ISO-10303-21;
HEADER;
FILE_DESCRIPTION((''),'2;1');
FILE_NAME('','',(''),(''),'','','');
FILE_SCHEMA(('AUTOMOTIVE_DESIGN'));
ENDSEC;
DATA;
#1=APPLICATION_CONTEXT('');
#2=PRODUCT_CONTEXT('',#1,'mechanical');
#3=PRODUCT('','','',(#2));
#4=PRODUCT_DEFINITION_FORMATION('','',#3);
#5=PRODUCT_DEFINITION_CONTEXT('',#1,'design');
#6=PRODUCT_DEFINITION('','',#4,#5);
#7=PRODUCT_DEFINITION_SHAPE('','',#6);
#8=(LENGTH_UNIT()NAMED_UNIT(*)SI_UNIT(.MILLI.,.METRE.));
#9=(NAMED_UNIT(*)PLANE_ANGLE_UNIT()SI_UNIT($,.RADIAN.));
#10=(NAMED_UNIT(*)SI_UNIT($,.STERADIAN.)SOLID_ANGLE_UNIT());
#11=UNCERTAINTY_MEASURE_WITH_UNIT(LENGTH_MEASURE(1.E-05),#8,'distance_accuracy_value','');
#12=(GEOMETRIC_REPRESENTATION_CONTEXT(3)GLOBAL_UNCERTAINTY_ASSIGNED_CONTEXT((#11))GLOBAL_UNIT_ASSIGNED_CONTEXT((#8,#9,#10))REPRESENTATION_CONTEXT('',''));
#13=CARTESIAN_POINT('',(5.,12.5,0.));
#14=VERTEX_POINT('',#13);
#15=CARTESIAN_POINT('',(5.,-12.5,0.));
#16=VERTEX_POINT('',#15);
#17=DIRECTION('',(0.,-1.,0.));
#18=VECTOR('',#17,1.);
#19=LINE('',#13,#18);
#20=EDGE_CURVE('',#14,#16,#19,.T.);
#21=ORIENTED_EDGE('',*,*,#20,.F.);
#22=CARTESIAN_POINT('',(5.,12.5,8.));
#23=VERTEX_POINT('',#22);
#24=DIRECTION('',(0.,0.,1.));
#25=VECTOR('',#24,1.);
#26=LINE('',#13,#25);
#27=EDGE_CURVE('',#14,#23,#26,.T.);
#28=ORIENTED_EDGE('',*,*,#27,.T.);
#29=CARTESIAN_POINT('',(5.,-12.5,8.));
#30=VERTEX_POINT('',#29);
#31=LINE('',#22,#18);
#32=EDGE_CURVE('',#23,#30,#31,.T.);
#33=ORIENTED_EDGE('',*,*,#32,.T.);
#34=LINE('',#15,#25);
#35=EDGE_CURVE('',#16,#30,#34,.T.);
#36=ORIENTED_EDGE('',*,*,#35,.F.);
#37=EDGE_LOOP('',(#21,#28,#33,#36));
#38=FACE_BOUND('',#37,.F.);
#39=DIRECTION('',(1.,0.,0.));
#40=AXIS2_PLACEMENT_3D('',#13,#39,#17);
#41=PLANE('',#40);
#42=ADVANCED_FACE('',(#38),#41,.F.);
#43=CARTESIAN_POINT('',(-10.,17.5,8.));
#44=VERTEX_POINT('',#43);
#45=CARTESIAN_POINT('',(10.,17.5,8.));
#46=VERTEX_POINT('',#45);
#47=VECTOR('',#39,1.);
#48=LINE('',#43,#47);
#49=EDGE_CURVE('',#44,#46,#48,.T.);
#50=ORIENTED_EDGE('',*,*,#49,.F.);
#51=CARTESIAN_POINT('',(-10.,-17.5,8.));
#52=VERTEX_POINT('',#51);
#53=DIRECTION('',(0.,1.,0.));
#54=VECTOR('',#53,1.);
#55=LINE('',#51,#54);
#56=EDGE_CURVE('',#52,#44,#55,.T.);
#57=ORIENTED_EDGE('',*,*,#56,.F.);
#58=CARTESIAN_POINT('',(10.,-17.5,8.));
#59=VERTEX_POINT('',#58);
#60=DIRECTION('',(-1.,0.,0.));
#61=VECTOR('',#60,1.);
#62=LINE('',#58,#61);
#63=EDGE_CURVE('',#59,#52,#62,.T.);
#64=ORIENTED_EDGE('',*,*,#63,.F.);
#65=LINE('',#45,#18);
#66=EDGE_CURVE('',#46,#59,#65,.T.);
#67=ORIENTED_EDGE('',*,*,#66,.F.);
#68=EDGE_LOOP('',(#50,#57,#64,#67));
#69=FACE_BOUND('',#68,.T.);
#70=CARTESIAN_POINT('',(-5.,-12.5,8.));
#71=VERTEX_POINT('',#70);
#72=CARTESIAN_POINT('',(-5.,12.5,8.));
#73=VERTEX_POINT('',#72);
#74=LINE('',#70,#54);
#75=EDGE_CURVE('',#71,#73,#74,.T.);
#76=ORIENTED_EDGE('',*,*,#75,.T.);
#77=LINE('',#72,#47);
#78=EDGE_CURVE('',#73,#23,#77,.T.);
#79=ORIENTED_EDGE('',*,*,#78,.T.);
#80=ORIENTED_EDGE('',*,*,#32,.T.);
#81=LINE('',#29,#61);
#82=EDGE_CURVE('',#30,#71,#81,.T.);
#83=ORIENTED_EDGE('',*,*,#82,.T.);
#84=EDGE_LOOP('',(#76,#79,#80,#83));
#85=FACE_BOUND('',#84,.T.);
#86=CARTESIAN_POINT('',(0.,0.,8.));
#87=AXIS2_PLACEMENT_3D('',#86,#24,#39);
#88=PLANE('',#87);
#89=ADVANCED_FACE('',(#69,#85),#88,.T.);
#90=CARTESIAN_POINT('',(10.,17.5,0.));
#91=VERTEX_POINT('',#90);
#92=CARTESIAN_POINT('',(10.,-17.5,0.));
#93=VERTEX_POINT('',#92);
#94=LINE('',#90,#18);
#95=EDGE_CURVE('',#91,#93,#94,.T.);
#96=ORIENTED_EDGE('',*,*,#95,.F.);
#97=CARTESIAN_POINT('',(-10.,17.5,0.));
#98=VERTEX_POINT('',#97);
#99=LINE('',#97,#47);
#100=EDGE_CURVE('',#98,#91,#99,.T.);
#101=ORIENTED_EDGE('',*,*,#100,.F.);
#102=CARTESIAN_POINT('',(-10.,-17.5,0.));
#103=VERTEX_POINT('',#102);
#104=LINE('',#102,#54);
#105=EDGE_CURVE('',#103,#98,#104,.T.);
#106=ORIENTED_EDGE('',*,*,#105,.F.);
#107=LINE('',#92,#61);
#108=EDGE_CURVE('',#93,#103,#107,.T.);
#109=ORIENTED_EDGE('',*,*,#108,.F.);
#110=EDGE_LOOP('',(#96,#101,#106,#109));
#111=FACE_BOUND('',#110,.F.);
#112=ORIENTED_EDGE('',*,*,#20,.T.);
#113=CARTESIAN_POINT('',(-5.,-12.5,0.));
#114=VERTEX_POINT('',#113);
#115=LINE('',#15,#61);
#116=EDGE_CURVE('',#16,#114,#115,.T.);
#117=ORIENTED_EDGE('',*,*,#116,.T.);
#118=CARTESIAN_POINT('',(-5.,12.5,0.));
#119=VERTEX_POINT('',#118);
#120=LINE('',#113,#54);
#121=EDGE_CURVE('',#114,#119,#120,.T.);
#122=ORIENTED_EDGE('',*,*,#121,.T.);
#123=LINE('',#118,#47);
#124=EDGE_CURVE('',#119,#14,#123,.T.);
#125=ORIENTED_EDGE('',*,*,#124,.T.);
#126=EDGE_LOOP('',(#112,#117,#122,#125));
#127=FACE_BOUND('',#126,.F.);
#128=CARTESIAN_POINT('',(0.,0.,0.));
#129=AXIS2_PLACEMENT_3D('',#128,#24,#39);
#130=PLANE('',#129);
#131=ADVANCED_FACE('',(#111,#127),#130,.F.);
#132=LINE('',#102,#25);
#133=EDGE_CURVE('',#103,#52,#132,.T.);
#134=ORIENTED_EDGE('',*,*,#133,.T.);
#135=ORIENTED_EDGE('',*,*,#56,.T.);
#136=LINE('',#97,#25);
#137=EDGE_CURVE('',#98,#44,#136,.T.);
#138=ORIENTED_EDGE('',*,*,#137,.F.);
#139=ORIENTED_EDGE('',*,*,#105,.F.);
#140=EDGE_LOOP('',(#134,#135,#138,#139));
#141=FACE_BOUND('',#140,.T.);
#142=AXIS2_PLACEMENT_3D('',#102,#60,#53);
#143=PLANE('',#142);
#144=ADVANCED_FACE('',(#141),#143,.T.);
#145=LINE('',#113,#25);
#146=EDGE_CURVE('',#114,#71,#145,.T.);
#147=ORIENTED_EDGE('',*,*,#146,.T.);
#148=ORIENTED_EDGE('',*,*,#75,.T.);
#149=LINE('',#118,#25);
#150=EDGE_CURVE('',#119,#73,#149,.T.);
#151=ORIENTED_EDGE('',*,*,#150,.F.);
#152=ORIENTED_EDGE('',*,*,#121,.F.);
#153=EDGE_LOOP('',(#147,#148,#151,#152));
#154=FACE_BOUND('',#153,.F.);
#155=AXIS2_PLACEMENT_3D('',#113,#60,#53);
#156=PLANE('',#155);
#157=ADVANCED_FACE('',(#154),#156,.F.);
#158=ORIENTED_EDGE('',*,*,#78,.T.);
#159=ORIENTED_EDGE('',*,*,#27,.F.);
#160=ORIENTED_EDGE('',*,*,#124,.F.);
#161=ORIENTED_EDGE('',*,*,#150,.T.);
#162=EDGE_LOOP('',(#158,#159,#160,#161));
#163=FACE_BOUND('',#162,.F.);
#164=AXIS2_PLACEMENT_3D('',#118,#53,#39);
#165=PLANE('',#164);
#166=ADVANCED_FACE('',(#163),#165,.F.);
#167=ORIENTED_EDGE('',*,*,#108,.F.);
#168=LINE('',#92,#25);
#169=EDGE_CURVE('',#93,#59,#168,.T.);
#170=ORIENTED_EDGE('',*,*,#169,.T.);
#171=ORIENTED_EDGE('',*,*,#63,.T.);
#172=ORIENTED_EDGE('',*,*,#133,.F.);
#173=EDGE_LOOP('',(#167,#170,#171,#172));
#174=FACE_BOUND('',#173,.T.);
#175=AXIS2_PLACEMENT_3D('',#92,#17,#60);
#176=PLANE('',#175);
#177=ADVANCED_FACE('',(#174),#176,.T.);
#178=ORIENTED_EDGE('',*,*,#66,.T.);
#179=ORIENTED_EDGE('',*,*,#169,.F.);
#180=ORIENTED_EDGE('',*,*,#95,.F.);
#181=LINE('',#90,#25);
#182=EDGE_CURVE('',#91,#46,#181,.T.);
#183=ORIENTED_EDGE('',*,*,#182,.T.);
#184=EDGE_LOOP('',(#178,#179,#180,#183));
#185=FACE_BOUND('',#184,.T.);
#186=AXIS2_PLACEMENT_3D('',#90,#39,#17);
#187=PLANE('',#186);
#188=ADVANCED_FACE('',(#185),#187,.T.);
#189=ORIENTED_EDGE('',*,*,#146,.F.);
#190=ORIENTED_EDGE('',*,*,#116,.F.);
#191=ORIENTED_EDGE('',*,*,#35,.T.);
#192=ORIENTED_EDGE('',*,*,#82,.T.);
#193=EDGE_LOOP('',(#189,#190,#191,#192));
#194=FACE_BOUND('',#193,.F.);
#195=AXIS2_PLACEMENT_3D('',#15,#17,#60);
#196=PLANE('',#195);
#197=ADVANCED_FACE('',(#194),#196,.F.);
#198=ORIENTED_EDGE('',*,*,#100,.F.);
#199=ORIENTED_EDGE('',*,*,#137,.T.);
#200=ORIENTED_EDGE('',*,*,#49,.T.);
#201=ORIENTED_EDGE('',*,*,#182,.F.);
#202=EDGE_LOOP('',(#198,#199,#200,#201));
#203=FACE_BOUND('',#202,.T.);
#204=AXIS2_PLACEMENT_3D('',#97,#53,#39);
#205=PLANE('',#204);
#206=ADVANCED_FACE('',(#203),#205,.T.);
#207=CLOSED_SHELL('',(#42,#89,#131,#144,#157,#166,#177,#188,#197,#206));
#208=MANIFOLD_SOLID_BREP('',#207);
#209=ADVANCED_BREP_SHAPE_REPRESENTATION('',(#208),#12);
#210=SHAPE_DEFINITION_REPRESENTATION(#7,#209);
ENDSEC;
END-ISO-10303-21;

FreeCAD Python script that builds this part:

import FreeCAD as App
import Part
import Sketcher

V = App.Vector

doc = App.newDocument("Part")
body = doc.addObject("PartDesign::Body", "Body")

sketch1 = doc.addObject("Sketcher::SketchObject", "Sketch")
body.addObject(sketch1)
sketch1.AttachmentSupport = (doc.XY_Plane, [""])
sketch1.MapMode = "FlatFace"
sketch1.addGeometry([
    Part.LineSegment(V(-10, -18, 0), V(10, -18, 0)),
    Part.LineSegment(V(10, -18, 0), V(10, 18, 0)),
    Part.LineSegment(V(10, 18, 0), V(-10, 18, 0)),
    Part.LineSegment(V(-10, 18, 0), V(-10, -18, 0)),
    Part.LineSegment(V(5, 12, 0), V(5, -12, 0)),
    Part.LineSegment(V(5, -12, 0), V(-5, -12, 0)),
    Part.LineSegment(V(-5, -12, 0), V(-5, 12, 0)),
    Part.LineSegment(V(-5, 12, 0), V(5, 12, 0)),
], False)
sketch1.addConstraint([
    Sketcher.Constraint("Coincident", 0, 2, 1, 1),
    Sketcher.Constraint("Coincident", 1, 2, 2, 1),
    Sketcher.Constraint("Coincident", 2, 2, 3, 1),
    Sketcher.Constraint("Coincident", 3, 2, 0, 1),
    Sketcher.Constraint("Coincident", 4, 2, 5, 1),
    Sketcher.Constraint("Coincident", 5, 2, 6, 1),
    Sketcher.Constraint("Coincident", 6, 2, 7, 1),
    Sketcher.Constraint("Coincident", 7, 2, 4, 1),
    Sketcher.Constraint("Horizontal", 0),
    Sketcher.Constraint("Vertical", 1),
    Sketcher.Constraint("Horizontal", 2),
    Sketcher.Constraint("Vertical", 3),
    Sketcher.Constraint("Vertical", 4),
    Sketcher.Constraint("Horizontal", 5),
    Sketcher.Constraint("Vertical", 6),
    Sketcher.Constraint("Horizontal", 7),
    Sketcher.Constraint("Symmetric", 0, 2, 2, 2, -1, 1),
    Sketcher.Constraint("Symmetric", 4, 2, 6, 2, -1, 1),
    Sketcher.Constraint("DistanceY", 1, 1, 1, 2, 35.0),
    Sketcher.Constraint("DistanceY", 4, 2, 4, 1, 25.0),
    Sketcher.Constraint("DistanceX", 0, 1, 0, 2, 20.0),
    Sketcher.Constraint("DistanceX", 5, 2, 5, 1, 10.0),
])
pad1 = doc.addObject("PartDesign::Pad", "Pad")
body.addObject(pad1)
pad1.Profile = sketch1
pad1.Length = 8

doc.recompute()
